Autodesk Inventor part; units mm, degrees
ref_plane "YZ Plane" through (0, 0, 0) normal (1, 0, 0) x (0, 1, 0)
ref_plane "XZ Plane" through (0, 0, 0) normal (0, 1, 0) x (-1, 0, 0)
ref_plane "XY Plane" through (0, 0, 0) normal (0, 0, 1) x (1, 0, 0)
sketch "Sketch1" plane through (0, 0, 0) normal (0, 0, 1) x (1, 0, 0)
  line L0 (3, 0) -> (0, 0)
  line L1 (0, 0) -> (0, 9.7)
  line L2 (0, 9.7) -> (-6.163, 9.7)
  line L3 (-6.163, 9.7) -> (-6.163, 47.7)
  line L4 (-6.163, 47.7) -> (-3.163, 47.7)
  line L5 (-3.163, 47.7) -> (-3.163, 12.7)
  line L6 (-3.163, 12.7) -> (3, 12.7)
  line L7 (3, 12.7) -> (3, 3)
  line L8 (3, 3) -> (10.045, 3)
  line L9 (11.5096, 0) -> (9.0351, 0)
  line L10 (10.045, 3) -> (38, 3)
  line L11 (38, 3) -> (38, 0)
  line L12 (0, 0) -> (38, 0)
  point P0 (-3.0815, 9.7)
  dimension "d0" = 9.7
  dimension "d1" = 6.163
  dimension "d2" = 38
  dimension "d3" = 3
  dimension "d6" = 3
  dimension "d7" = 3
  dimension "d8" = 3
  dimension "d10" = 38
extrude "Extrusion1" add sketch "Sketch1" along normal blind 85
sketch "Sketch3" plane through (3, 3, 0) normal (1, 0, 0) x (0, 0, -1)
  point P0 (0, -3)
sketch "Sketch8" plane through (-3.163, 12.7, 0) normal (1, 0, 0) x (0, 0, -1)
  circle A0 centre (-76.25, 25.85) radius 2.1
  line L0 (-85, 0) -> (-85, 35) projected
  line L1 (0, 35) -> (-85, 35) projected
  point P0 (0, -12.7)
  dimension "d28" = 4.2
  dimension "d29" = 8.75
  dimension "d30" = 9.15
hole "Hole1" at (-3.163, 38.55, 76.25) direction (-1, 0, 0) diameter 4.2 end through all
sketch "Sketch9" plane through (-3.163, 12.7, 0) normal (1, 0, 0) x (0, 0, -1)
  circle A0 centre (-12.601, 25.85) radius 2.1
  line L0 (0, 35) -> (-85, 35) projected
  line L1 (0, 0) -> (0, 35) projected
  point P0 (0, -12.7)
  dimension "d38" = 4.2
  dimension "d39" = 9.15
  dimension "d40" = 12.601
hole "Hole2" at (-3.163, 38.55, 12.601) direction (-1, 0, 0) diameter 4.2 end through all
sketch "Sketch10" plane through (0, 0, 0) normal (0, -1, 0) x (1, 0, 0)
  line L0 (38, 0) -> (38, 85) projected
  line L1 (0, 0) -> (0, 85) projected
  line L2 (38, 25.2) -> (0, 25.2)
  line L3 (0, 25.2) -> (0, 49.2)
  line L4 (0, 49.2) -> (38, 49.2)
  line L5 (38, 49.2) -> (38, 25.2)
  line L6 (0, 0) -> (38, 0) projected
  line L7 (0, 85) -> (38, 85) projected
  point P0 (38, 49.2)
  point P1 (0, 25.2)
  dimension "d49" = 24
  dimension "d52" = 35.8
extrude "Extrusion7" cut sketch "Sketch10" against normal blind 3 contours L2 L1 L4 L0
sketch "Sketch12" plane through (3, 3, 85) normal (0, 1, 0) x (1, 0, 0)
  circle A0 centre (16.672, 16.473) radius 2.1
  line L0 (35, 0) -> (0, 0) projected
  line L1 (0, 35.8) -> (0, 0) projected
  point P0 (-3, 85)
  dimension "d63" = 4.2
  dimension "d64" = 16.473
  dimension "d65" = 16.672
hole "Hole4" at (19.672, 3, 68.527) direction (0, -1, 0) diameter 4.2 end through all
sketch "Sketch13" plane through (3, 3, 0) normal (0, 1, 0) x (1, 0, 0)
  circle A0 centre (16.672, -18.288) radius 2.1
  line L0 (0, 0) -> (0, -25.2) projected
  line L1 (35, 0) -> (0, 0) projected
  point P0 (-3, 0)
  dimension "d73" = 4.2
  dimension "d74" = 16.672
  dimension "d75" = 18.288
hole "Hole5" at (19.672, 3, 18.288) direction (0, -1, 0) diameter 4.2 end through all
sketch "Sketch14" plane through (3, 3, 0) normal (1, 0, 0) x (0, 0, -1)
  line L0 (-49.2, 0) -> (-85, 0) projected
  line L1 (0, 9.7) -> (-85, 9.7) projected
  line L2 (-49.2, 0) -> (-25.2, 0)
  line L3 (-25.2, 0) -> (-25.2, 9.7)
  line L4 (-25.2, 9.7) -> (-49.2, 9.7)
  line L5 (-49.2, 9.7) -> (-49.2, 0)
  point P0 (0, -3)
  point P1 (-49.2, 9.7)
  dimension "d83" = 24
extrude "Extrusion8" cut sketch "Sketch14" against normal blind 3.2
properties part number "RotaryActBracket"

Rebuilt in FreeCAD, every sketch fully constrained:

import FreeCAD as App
import Part
import Sketcher

V = App.Vector
Q = App.Units.Quantity


def add_polygon(sketch, points):
    """Adds a closed chain of lines whose ends are joined by coincident constraints."""
    first, n = sketch.GeometryCount, len(points)
    for a, b in zip(points, points[1:] + points[:1]):
        sketch.addGeometry(Part.LineSegment(App.Vector(*a, 0), App.Vector(*b, 0)), False)
    for i in range(n):
        sketch.addConstraint(Sketcher.Constraint("Coincident", first + i, 2, first + (i + 1) % n, 1))

doc = App.newDocument("Part")
params = doc.addObject("Spreadsheet::Sheet", "Params")
for row, (alias, value) in enumerate([
    ("sketch1_width", "38 mm"),
    ("sketch1_width2", "3 mm"),
    ("sketch1_height", "9.7 mm"),
    ("pad1_length", "85 mm"),
    ("sketch2_diameter", "4.2 mm"),
    ("hole_diameter", "4.2 mm"),
    ("sketch3_diameter", "4.2 mm"),
    ("hole2_diameter", "4.2 mm"),
    ("sketch4_height", "24 mm"),
    ("sketch4_width", "38 mm"),
    ("pocket1_length", "3 mm"),
    ("sketch5_diameter", "4.2 mm"),
    ("hole3_diameter", "4.2 mm"),
    ("sketch6_diameter", "4.2 mm"),
    ("hole4_diameter", "4.2 mm"),
    ("sketch7_height", "24 mm"),
    ("sketch7_width", "9.7 mm"),
    ("pocket2_length", "3.2 mm"),
], start=1):
    params.set(f"A{row}", alias)
    params.set(f"B{row}", "=" + value)
    params.setAlias(f"B{row}", alias)

body = doc.addObject("PartDesign::Body", "Body")

# Sketch on XY plane
sketch1 = body.newObject("Sketcher::SketchObject", "Sketch")
sketch1.AttachmentSupport = (doc.getObject("XY_Plane"), [""])
sketch1.MapMode = "FlatFace"
add_polygon(sketch1, [(0, 0), (38, 0), (38, 3), (3, 3), (3, 12.7), (-3.2, 12.7), (-3.2, 47.7), (-6.2, 47.7), (-6.2, 9.7), (0, 9.7)])  # lines 0-9
sketch1.addConstraint(Sketcher.Constraint("Horizontal", 0))
sketch1.addConstraint(Sketcher.Constraint("Vertical", 1))
sketch1.addConstraint(Sketcher.Constraint("Horizontal", 2))
sketch1.addConstraint(Sketcher.Constraint("Vertical", 3))
sketch1.addConstraint(Sketcher.Constraint("Horizontal", 4))
sketch1.addConstraint(Sketcher.Constraint("Vertical", 5))
sketch1.addConstraint(Sketcher.Constraint("Horizontal", 6))
sketch1.addConstraint(Sketcher.Constraint("Vertical", 7))
sketch1.addConstraint(Sketcher.Constraint("Horizontal", 8))
sketch1.addConstraint(Sketcher.Constraint("Vertical", 9))
sketch1.addConstraint(Sketcher.Constraint("Coincident", 9, 2, -1, 1))
sketch1.addConstraint(Sketcher.Constraint("Equal", 4, 8))
sketch1.addConstraint(Sketcher.Constraint("Equal", 6, 1))
sketch1.addConstraint(Sketcher.Constraint("Equal", 2, 5))
sketch1.addConstraint(Sketcher.Constraint("Equal", 0, 7))
sketch1.addConstraint(Sketcher.Constraint("DistanceX", 0, 1, 0, 2, Q("38 mm")))
sketch1.addConstraint(Sketcher.Constraint("DistanceX", 6, 2, 6, 1, Q("3 mm")))
sketch1.addConstraint(Sketcher.Constraint("DistanceY", 3, 1, 3, 2, Q("9.7 mm")))
sketch1.addConstraint(Sketcher.Constraint("DistanceX", 4, 2, 4, 1, Q("6.163 mm")))
sketch1.setExpression("Constraints[25]", "Params.sketch1_width")
sketch1.setExpression("Constraints[26]", "Params.sketch1_width2")
sketch1.setExpression("Constraints[27]", "Params.sketch1_height")
pad1 = body.newObject("PartDesign::Pad", "Pad")
pad1.Profile = sketch1
pad1.setExpression("Length", "Params.pad1_length")

# Sketch on YZ plane
sketch2 = body.newObject("Sketcher::SketchObject", "Sketch001")
sketch2.AttachmentSupport = (doc.getObject("YZ_Plane"), [""])
sketch2.MapMode = "FlatFace"
sketch2.AttachmentOffset = App.Placement(V(0, 0, -3.163), App.Rotation())
sketch2.addGeometry(Part.Circle(V(38.5, 76.2, 0), V(0, 0, 1), 2.1), False)
sketch2.addConstraint(Sketcher.Constraint("Diameter", 0, Q("4.2 mm")))
sketch2.addConstraint(Sketcher.Constraint("DistanceX", -1, 1, 0, 3, Q("38.55 mm")))
sketch2.addConstraint(Sketcher.Constraint("DistanceY", -1, 1, 0, 3, Q("76.25 mm")))
sketch2.setExpression("Constraints[0]", "Params.sketch2_diameter")
doc.recompute()
hole = body.newObject("PartDesign::Hole", "Hole")
hole.Profile = sketch2
hole.ThreadType = "None"
hole.setExpression("Diameter", "Params.hole_diameter")
hole.DepthType = "ThroughAll"

# Sketch on YZ plane
sketch3 = body.newObject("Sketcher::SketchObject", "Sketch002")
sketch3.AttachmentSupport = (doc.getObject("YZ_Plane"), [""])
sketch3.MapMode = "FlatFace"
sketch3.AttachmentOffset = App.Placement(V(0, 0, -3.163), App.Rotation())
sketch3.addGeometry(Part.Circle(V(38.5, 12.6, 0), V(0, 0, 1), 2.1), False)
sketch3.addConstraint(Sketcher.Constraint("Diameter", 0, Q("4.2 mm")))
sketch3.addConstraint(Sketcher.Constraint("DistanceX", -1, 1, 0, 3, Q("38.55 mm")))
sketch3.addConstraint(Sketcher.Constraint("DistanceY", -1, 1, 0, 3, Q("12.601 mm")))
sketch3.setExpression("Constraints[0]", "Params.sketch3_diameter")
doc.recompute()
hole2 = body.newObject("PartDesign::Hole", "Hole001")
hole2.Profile = sketch3
hole2.ThreadType = "None"
hole2.setExpression("Diameter", "Params.hole2_diameter")
hole2.DepthType = "ThroughAll"

# Sketch on XZ plane
sketch4 = body.newObject("Sketcher::SketchObject", "Sketch003")
sketch4.AttachmentSupport = (doc.getObject("XZ_Plane"), [""])
sketch4.MapMode = "FlatFace"
add_polygon(sketch4, [(0, 25), (38, 25), (38, 49), (0, 49)])  # lines 0-3
sketch4.addConstraint(Sketcher.Constraint("Horizontal", 0))
sketch4.addConstraint(Sketcher.Constraint("Vertical", 1))
sketch4.addConstraint(Sketcher.Constraint("Horizontal", 2))
sketch4.addConstraint(Sketcher.Constraint("Vertical", 3))
sketch4.addConstraint(Sketcher.Constraint("PointOnObject", 2, 2, -2))
sketch4.addConstraint(Sketcher.Constraint("DistanceY", 1, 1, 1, 2, Q("24 mm")))
sketch4.addConstraint(Sketcher.Constraint("DistanceX", 0, 1, 0, 2, Q("38 mm")))
sketch4.addConstraint(Sketcher.Constraint("DistanceY", -1, 1, 0, 2, Q("25.2 mm")))
sketch4.setExpression("Constraints[9]", "Params.sketch4_height")
sketch4.setExpression("Constraints[10]", "Params.sketch4_width")
pocket1 = body.newObject("PartDesign::Pocket", "Pocket")
pocket1.Profile = sketch4
pocket1.setExpression("Length", "Params.pocket1_length")

# Sketch on XZ plane
sketch5 = body.newObject("Sketcher::SketchObject", "Sketch004")
sketch5.AttachmentSupport = (doc.getObject("XZ_Plane"), [""])
sketch5.MapMode = "FlatFace"
sketch5.AttachmentOffset = App.Placement(V(0, 0, -3), App.Rotation())
sketch5.addGeometry(Part.Circle(V(19.7, 68.5, 0), V(0, 0, 1), 2.1), False)
sketch5.addConstraint(Sketcher.Constraint("Diameter", 0, Q("4.2 mm")))
sketch5.addConstraint(Sketcher.Constraint("DistanceX", -1, 1, 0, 3, Q("19.672 mm")))
sketch5.addConstraint(Sketcher.Constraint("DistanceY", -1, 1, 0, 3, Q("68.527 mm")))
sketch5.setExpression("Constraints[0]", "Params.sketch5_diameter")
doc.recompute()
hole3 = body.newObject("PartDesign::Hole", "Hole002")
hole3.Profile = sketch5
hole3.ThreadType = "None"
hole3.setExpression("Diameter", "Params.hole3_diameter")
hole3.DepthType = "ThroughAll"
hole3.Reversed = True

# Sketch on XZ plane
sketch6 = body.newObject("Sketcher::SketchObject", "Sketch005")
sketch6.AttachmentSupport = (doc.getObject("XZ_Plane"), [""])
sketch6.MapMode = "FlatFace"
sketch6.AttachmentOffset = App.Placement(V(0, 0, -3), App.Rotation())
sketch6.addGeometry(Part.Circle(V(19.7, 18.3, 0), V(0, 0, 1), 2.1), False)
sketch6.addConstraint(Sketcher.Constraint("Diameter", 0, Q("4.2 mm")))
sketch6.addConstraint(Sketcher.Constraint("DistanceX", -1, 1, 0, 3, Q("19.672 mm")))
sketch6.addConstraint(Sketcher.Constraint("DistanceY", -1, 1, 0, 3, Q("18.288 mm")))
sketch6.setExpression("Constraints[0]", "Params.sketch6_diameter")
doc.recompute()
hole4 = body.newObject("PartDesign::Hole", "Hole003")
hole4.Profile = sketch6
hole4.ThreadType = "None"
hole4.setExpression("Diameter", "Params.hole4_diameter")
hole4.DepthType = "ThroughAll"
hole4.Reversed = True

# Sketch on YZ plane
sketch7 = body.newObject("Sketcher::SketchObject", "Sketch006")
sketch7.AttachmentSupport = (doc.getObject("YZ_Plane"), [""])
sketch7.MapMode = "FlatFace"
sketch7.AttachmentOffset = App.Placement(V(0, 0, 3), App.Rotation())
add_polygon(sketch7, [(3, 25), (13, 25), (13, 49), (3, 49)])  # lines 0-3
sketch7.addConstraint(Sketcher.Constraint("Horizontal", 0))
sketch7.addConstraint(Sketcher.Constraint("Vertical", 1))
sketch7.addConstraint(Sketcher.Constraint("Horizontal", 2))
sketch7.addConstraint(Sketcher.Constraint("Vertical", 3))
sketch7.addConstraint(Sketcher.Constraint("DistanceY", 1, 1, 1, 2, Q("24 mm")))
sketch7.addConstraint(Sketcher.Constraint("DistanceX", 0, 1, 0, 2, Q("9.7 mm")))
sketch7.addConstraint(Sketcher.Constraint("DistanceX", -1, 1, 2, 2, Q("3 mm")))
sketch7.addConstraint(Sketcher.Constraint("DistanceY", -1, 1, 0, 2, Q("25.2 mm")))
sketch7.setExpression("Constraints[8]", "Params.sketch7_height")
sketch7.setExpression("Constraints[9]", "Params.sketch7_width")
pocket2 = body.newObject("PartDesign::Pocket", "Pocket001")
pocket2.Profile = sketch7
pocket2.setExpression("Length", "Params.pocket2_length")

doc.recompute()
